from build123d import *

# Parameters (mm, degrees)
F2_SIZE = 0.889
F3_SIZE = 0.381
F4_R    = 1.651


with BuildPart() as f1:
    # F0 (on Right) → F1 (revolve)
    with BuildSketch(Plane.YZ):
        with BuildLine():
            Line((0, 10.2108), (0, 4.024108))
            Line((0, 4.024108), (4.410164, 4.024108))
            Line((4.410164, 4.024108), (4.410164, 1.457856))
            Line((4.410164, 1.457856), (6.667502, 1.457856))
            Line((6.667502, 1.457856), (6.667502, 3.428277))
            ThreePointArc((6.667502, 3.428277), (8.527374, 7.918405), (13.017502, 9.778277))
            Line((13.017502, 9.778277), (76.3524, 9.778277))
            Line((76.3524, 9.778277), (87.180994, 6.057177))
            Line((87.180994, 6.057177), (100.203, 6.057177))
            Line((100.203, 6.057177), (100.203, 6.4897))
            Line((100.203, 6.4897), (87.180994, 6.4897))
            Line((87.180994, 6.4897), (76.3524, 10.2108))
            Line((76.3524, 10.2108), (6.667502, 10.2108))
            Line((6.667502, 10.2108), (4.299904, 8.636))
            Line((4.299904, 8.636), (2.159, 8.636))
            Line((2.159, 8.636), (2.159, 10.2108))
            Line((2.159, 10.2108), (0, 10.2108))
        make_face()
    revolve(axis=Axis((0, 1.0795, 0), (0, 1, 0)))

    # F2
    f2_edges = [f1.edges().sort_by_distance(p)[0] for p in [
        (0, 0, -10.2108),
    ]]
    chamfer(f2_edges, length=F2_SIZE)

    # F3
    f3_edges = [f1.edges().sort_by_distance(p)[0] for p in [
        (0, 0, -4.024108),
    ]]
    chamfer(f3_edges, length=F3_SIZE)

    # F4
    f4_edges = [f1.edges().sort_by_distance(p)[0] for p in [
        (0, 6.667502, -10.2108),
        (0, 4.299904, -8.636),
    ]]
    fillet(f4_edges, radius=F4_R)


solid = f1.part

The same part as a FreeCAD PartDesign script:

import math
import FreeCAD as App
import Part
import Sketcher
Q = App.Units.Quantity


def edges_at(feature, points):
    """Names of the edges that pass closest to the given points."""
    edges = feature.Shape.Edges
    near = lambda p: min(range(len(edges)), key=lambda i: edges[i].distToShape(Part.Vertex(*p))[0])
    return sorted({f"Edge{near(p) + 1}" for p in points})

doc = App.newDocument("Part")
body = doc.addObject("PartDesign::Body", "Body")

sketch1 = body.newObject("Sketcher::SketchObject", "Sketch")
sketch1.AttachmentSupport = (doc.getObject("YZ_Plane"), [""])
sketch1.MapMode = "FlatFace"
sketch1.addGeometry(Part.LineSegment(App.Vector(0, 10.21, 0), App.Vector(0, 4.02, 0)), False)
sketch1.addGeometry(Part.LineSegment(App.Vector(0, 4.02, 0), App.Vector(4.41, 4.02, 0)), False)
sketch1.addGeometry(Part.LineSegment(App.Vector(4.41, 4.02, 0), App.Vector(4.41, 1.46, 0)), False)
sketch1.addGeometry(Part.LineSegment(App.Vector(4.41, 1.46, 0), App.Vector(6.67, 1.46, 0)), False)
sketch1.addGeometry(Part.LineSegment(App.Vector(6.67, 1.46, 0), App.Vector(6.67, 3.43, 0)), False)
sketch1.addGeometry(Part.ArcOfCircle(Part.Circle(App.Vector(13.02, 3.43, 0), App.Vector(0, 0, 1), 6.35), math.radians(90), math.radians(180)), False)
sketch1.addGeometry(Part.LineSegment(App.Vector(13.02, 9.78, 0), App.Vector(76.35, 9.78, 0)), False)
sketch1.addGeometry(Part.LineSegment(App.Vector(76.35, 9.78, 0), App.Vector(87.18, 6.06, 0)), False)
sketch1.addGeometry(Part.LineSegment(App.Vector(87.18, 6.06, 0), App.Vector(100.2, 6.06, 0)), False)
sketch1.addGeometry(Part.LineSegment(App.Vector(100.2, 6.06, 0), App.Vector(100.2, 6.49, 0)), False)
sketch1.addGeometry(Part.LineSegment(App.Vector(100.2, 6.49, 0), App.Vector(87.18, 6.49, 0)), False)
sketch1.addGeometry(Part.LineSegment(App.Vector(87.18, 6.49, 0), App.Vector(76.35, 10.21, 0)), False)
sketch1.addGeometry(Part.LineSegment(App.Vector(76.35, 10.21, 0), App.Vector(6.67, 10.21, 0)), False)
sketch1.addGeometry(Part.LineSegment(App.Vector(6.67, 10.21, 0), App.Vector(4.3, 8.64, 0)), False)
sketch1.addGeometry(Part.LineSegment(App.Vector(4.3, 8.64, 0), App.Vector(2.16, 8.64, 0)), False)
sketch1.addGeometry(Part.LineSegment(App.Vector(2.16, 8.64, 0), App.Vector(2.16, 10.21, 0)), False)
sketch1.addGeometry(Part.LineSegment(App.Vector(2.16, 10.21, 0), App.Vector(0, 10.21, 0)), False)
sketch1.addConstraint(Sketcher.Constraint("Coincident", 0, 2, 1, 1))
sketch1.addConstraint(Sketcher.Constraint("Coincident", 1, 2, 2, 1))
sketch1.addConstraint(Sketcher.Constraint("Coincident", 2, 2, 3, 1))
sketch1.addConstraint(Sketcher.Constraint("Coincident", 3, 2, 4, 1))
sketch1.addConstraint(Sketcher.Constraint("Tangent", 4, 2, 5, 2))
sketch1.addConstraint(Sketcher.Constraint("Tangent", 5, 1, 6, 1))
sketch1.addConstraint(Sketcher.Constraint("Coincident", 6, 2, 7, 1))
sketch1.addConstraint(Sketcher.Constraint("Coincident", 7, 2, 8, 1))
sketch1.addConstraint(Sketcher.Constraint("Coincident", 8, 2, 9, 1))
sketch1.addConstraint(Sketcher.Constraint("Coincident", 9, 2, 10, 1))
sketch1.addConstraint(Sketcher.Constraint("Coincident", 10, 2, 11, 1))
sketch1.addConstraint(Sketcher.Constraint("Coincident", 11, 2, 12, 1))
sketch1.addConstraint(Sketcher.Constraint("Coincident", 12, 2, 13, 1))
sketch1.addConstraint(Sketcher.Constraint("Coincident", 13, 2, 14, 1))
sketch1.addConstraint(Sketcher.Constraint("Coincident", 14, 2, 15, 1))
sketch1.addConstraint(Sketcher.Constraint("Coincident", 15, 2, 16, 1))
sketch1.addConstraint(Sketcher.Constraint("Coincident", 16, 2, 0, 1))
sketch1.addConstraint(Sketcher.Constraint("Vertical", 0))
sketch1.addConstraint(Sketcher.Constraint("Horizontal", 1))
sketch1.addConstraint(Sketcher.Constraint("Vertical", 2))
sketch1.addConstraint(Sketcher.Constraint("Horizontal", 3))
sketch1.addConstraint(Sketcher.Constraint("Vertical", 4))
sketch1.addConstraint(Sketcher.Constraint("Horizontal", 6))
sketch1.addConstraint(Sketcher.Constraint("Horizontal", 8))
sketch1.addConstraint(Sketcher.Constraint("Vertical", 9))
sketch1.addConstraint(Sketcher.Constraint("Horizontal", 10))
sketch1.addConstraint(Sketcher.Constraint("Horizontal", 12))
sketch1.addConstraint(Sketcher.Constraint("Horizontal", 14))
sketch1.addConstraint(Sketcher.Constraint("Vertical", 15))
sketch1.addConstraint(Sketcher.Constraint("Horizontal", 16))
sketch1.addConstraint(Sketcher.Constraint("PointOnObject", 0, 2, -2))
sketch1.addConstraint(Sketcher.Constraint("Parallel", 7, 11))
sketch1.addConstraint(Sketcher.Constraint("Horizontal", 12, 2, 15, 2))
sketch1.addConstraint(Sketcher.Constraint("Vertical", 7, 2, 10, 2))
sketch1.addConstraint(Sketcher.Constraint("Vertical", 6, 2, 11, 2))
sketch1.addConstraint(Sketcher.Constraint("Vertical", 4, 2, 12, 2))
sketch1.addConstraint(Sketcher.Constraint("Radius", 5, Q("0.25 in")))
sketch1.addConstraint(Sketcher.Constraint("DistanceX", 16, 2, 16, 1, Q("0.085 in")))
sketch1.addConstraint(Sketcher.Constraint("DistanceY", 15, 1, 15, 2, Q("0.062 in")))
sketch1.addConstraint(Sketcher.Constraint("DistanceY", -1, 1, 13, 2, Q("0.34 in")))
sketch1.addConstraint(Sketcher.Constraint("DistanceX", 6, 1, 6, 2, Q("2.4934999 in")))
sketch1.addConstraint(Sketcher.Constraint("DistanceX", -1, 1, 6, 2, Q("3.006 in")))
sketch1.addConstraint(Sketcher.Constraint("DistanceX", -1, 1, 8, 2, Q("3.945 in")))
sketch1.addConstraint(Sketcher.Constraint("DistanceY", -1, 1, 9, 2, Q("0.2555 in")))
sketch1.addConstraint(Sketcher.Constraint("DistanceY", 2, 2, 2, 1, Q("2.566252 mm")))
sketch1.addConstraint(Sketcher.Constraint("DistanceY", 4, 1, 4, 2, Q("1.970421 mm")))
sketch1.addConstraint(Sketcher.Constraint("DistanceX", 13, 2, 12, 2, Q("2.367598 mm")))
sketch1.addConstraint(Sketcher.Constraint("Distance", 7, Q("11.450111 mm")))
sketch1.addConstraint(Sketcher.Constraint("DistanceX", 1, 1, 1, 2, Q("4.410164 mm")))
sketch1.addConstraint(Sketcher.Constraint("DistanceY", 0, 2, 0, 1, Q("6.186692 mm")))
revolution = body.newObject("PartDesign::Revolution", "Revolution")
revolution.Profile = sketch1
revolution.ReferenceAxis = (sketch1, ["H_Axis"])
revolution.Angle = 360
doc.recompute()

chamfer = body.newObject("PartDesign::Chamfer", "Chamfer")
chamfer.Base = (revolution, edges_at(revolution, [(0, 0, -10.211)]))
chamfer.Size = Q("0.035 in")
doc.recompute()

chamfer2 = body.newObject("PartDesign::Chamfer", "Chamfer001")
chamfer2.Base = (chamfer, edges_at(chamfer, [(0, 0, -4.024)]))
chamfer2.Size = Q("0.015 in")
doc.recompute()

fillet = body.newObject("PartDesign::Fillet", "Fillet")
fillet.Base = (chamfer2, edges_at(chamfer2, [(0, 6.668, -10.211), (0, 4.3, -8.636)]))
fillet.Radius = Q("0.065 in")

doc.recompute()
